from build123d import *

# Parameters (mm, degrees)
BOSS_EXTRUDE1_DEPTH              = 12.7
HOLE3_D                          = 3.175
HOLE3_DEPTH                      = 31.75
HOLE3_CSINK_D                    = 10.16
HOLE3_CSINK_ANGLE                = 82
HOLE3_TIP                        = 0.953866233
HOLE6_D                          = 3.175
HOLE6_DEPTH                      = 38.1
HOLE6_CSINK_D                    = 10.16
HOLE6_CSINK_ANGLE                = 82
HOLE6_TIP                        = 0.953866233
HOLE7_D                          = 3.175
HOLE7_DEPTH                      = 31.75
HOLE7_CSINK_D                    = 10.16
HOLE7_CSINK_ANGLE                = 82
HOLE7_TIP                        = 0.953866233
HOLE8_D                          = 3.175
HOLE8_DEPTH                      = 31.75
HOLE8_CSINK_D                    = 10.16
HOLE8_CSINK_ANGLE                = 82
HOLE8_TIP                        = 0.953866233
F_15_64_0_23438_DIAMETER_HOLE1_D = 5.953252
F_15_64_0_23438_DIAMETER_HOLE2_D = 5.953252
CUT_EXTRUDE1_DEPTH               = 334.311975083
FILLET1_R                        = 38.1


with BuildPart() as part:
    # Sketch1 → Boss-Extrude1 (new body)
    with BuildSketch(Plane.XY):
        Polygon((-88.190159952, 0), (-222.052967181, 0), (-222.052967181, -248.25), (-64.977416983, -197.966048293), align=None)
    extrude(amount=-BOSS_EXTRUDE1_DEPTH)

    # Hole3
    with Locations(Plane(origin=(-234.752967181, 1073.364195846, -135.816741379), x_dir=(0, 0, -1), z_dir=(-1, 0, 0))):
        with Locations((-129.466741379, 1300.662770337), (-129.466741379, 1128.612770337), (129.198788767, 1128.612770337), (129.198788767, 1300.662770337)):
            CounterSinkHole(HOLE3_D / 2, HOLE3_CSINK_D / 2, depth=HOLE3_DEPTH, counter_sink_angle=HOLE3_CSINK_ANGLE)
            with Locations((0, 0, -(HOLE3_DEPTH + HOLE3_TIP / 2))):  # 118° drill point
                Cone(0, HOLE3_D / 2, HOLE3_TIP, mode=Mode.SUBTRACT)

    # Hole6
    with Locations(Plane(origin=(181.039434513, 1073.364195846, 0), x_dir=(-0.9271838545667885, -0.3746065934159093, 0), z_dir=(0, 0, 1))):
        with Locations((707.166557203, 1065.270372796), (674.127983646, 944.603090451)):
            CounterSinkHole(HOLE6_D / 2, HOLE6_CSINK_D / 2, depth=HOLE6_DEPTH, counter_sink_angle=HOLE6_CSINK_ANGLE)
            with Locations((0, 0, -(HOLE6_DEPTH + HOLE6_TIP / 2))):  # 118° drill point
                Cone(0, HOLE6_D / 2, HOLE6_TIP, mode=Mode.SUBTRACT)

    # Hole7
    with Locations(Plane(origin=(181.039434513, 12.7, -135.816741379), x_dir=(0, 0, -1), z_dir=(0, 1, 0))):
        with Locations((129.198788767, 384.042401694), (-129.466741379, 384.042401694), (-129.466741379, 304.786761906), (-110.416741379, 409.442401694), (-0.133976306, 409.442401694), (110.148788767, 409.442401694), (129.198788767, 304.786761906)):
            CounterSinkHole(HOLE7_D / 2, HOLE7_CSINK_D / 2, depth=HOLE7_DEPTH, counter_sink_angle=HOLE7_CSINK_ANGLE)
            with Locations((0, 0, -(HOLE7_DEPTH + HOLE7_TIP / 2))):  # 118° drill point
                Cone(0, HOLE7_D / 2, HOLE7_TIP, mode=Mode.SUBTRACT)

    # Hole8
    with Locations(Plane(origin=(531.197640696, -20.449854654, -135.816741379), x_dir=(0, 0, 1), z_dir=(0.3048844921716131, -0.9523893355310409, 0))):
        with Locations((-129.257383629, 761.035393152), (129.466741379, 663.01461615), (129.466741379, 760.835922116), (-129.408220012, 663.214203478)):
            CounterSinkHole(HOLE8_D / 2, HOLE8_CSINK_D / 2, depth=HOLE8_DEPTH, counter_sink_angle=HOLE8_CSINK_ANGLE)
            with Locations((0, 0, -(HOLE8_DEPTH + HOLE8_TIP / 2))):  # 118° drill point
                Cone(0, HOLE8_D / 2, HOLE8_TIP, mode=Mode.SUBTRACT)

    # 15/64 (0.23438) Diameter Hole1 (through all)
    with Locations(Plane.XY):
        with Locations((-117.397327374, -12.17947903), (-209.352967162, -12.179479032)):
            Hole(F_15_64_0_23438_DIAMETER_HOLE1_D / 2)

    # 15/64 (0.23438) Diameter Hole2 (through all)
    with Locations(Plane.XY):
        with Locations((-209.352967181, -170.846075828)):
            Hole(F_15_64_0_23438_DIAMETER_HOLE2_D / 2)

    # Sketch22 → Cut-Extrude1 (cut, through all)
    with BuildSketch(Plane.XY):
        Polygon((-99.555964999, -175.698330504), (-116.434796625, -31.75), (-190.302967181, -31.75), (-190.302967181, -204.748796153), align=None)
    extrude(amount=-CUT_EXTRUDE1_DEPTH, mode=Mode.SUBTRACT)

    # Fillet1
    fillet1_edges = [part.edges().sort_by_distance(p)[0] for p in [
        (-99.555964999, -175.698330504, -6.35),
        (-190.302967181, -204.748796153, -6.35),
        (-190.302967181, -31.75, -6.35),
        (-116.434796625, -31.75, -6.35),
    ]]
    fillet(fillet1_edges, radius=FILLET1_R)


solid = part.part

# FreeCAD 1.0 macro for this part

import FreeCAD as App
import Part
import Sketcher

V = App.Vector
Q = App.Units.Quantity


def edges_at(feature, points):
    """Names of the edges that pass closest to the given points."""
    edges = feature.Shape.Edges
    near = lambda p: min(range(len(edges)), key=lambda i: edges[i].distToShape(Part.Vertex(*p))[0])
    return sorted({f"Edge{near(p) + 1}" for p in points})

doc = App.newDocument("Part")
body = doc.addObject("PartDesign::Body", "Body")

# Sketch on XY plane
sketch1 = body.newObject("Sketcher::SketchObject", "Sketch")
sketch1.AttachmentSupport = (doc.getObject("XY_Plane"), [""])
sketch1.MapMode = "FlatFace"
sketch1.addGeometry(Part.LineSegment(V(-88, 0, 0), V(-222, 0, 0)), False)
sketch1.addGeometry(Part.LineSegment(V(-222, 0, 0), V(-222, -248, 0)), False)
sketch1.addGeometry(Part.LineSegment(V(-222, -248, 0), V(-65, -198, 0)), False)
sketch1.addGeometry(Part.LineSegment(V(-65, -198, 0), V(-88, 0, 0)), False)
sketch1.addConstraint(Sketcher.Constraint("Coincident", 0, 2, 1, 1))
sketch1.addConstraint(Sketcher.Constraint("Coincident", 1, 2, 2, 1))
sketch1.addConstraint(Sketcher.Constraint("Coincident", 2, 2, 3, 1))
sketch1.addConstraint(Sketcher.Constraint("Coincident", 3, 2, 0, 1))
sketch1.addConstraint(Sketcher.Constraint("Horizontal", 0))
sketch1.addConstraint(Sketcher.Constraint("Vertical", 1))
sketch1.addConstraint(Sketcher.Constraint("PointOnObject", 0, 2, -1))
sketch1.addConstraint(Sketcher.Constraint("DistanceY", 1, 2, 1, 1, 248.25))
sketch1.addConstraint(Sketcher.Constraint("Distance", 3, 199.322321))
sketch1.addConstraint(Sketcher.Constraint("DistanceX", 0, 2, 0, 1, 133.862807))
sketch1.addConstraint(Sketcher.Constraint("DistanceY", 2, 2, -1, 1, 197.966048))
sketch1.addConstraint(Sketcher.Constraint("DistanceX", 3, 2, -1, 1, 88.19016))
pad1 = body.newObject("PartDesign::Pad", "Pad")
pad1.Profile = sketch1
pad1.Length = Q("0.5 in")
pad1.Reversed = True

# Sketch on YZ plane
sketch2 = body.newObject("Sketcher::SketchObject", "Sketch001")
sketch2.AttachmentSupport = (doc.getObject("YZ_Plane"), [""])
sketch2.MapMode = "FlatFace"
sketch2.AttachmentOffset = App.Placement(V(0, 0, -234.752967), App.Rotation())
sketch2.addGeometry(Part.Circle(V(-227.3, -6.3, 0), V(0, 0, 1), 1.6), False)
sketch2.addGeometry(Part.Circle(V(-55.2, -6.3, 0), V(0, 0, 1), 1.6), False)
sketch2.addGeometry(Part.Circle(V(-55.2, -265, 0), V(0, 0, 1), 1.6), False)
sketch2.addGeometry(Part.Circle(V(-227.3, -265, 0), V(0, 0, 1), 1.6), False)
sketch2.addConstraint(Sketcher.Constraint("Equal", 0, 1))
sketch2.addConstraint(Sketcher.Constraint("Equal", 1, 2))
sketch2.addConstraint(Sketcher.Constraint("Equal", 2, 3))
sketch2.addConstraint(Sketcher.Constraint("Horizontal", 0, 3, 1, 3))
sketch2.addConstraint(Sketcher.Constraint("Horizontal", 2, 3, 3, 3))
sketch2.addConstraint(Sketcher.Constraint("Vertical", 1, 3, 2, 3))
sketch2.addConstraint(Sketcher.Constraint("Vertical", 0, 3, 3, 3))
sketch2.addConstraint(Sketcher.Constraint("Diameter", 0, Q("0.125 in")))
sketch2.addConstraint(Sketcher.Constraint("DistanceY", 0, 3, -1, 1, Q("0.25 in")))
sketch2.addConstraint(Sketcher.Constraint("DistanceX", 0, 3, 1, 3, 172.05))
sketch2.addConstraint(Sketcher.Constraint("DistanceY", 2, 3, -1, 1, 265.01553))
sketch2.addConstraint(Sketcher.Constraint("DistanceX", 0, 3, -1, 1, 227.298574))
doc.recompute()
hole = body.newObject("PartDesign::Hole", "Hole")
hole.Profile = sketch2
hole.ThreadType = "None"
hole.Diameter = Q("0.125 in")
hole.DepthType = "Dimension"
hole.Depth = Q("1.25 in")
hole.DrillPoint = "Angled"
hole.DrillPointAngle = 118
hole.HoleCutType = "Countersink"
hole.HoleCutDiameter = Q("0.4 in")
hole.HoleCutCountersinkAngle = 82
hole.Reversed = True

# Sketch on XY plane
sketch3 = body.newObject("Sketcher::SketchObject", "Sketch002")
sketch3.AttachmentSupport = (doc.getObject("XY_Plane"), [""])
sketch3.MapMode = "FlatFace"
sketch3.addGeometry(Part.Circle(V(-75.6, -179.2, 0), V(0, 0, 1), 1.6), False)
sketch3.addGeometry(Part.Circle(V(-90.1, -55, 0), V(0, 0, 1), 1.6), False)
sketch3.addConstraint(Sketcher.Constraint("Equal", 0, 1))
sketch3.addConstraint(Sketcher.Constraint("Diameter", 0, Q("0.125 in")))
sketch3.addConstraint(Sketcher.Constraint("DistanceY", 0, 3, -1, 1, 179.24655))
sketch3.addConstraint(Sketcher.Constraint("DistanceX", 0, 3, -1, 1, 75.576675))
sketch3.addConstraint(Sketcher.Constraint("DistanceX", 1, 3, -1, 1, 90.146602))
sketch3.addConstraint(Sketcher.Constraint("DistanceY", 1, 3, -1, 1, 54.989326))
doc.recompute()
hole2 = body.newObject("PartDesign::Hole", "Hole001")
hole2.Profile = sketch3
hole2.ThreadType = "None"
hole2.Diameter = Q("0.125 in")
hole2.DepthType = "Dimension"
hole2.Depth = Q("1.5 in")
hole2.DrillPoint = "Angled"
hole2.DrillPointAngle = 118
hole2.HoleCutType = "Countersink"
hole2.HoleCutDiameter = Q("0.4 in")
hole2.HoleCutCountersinkAngle = 82

# Sketch on XZ plane
sketch4 = body.newObject("Sketcher::SketchObject", "Sketch003")
sketch4.AttachmentSupport = (doc.getObject("XZ_Plane"), [""])
sketch4.MapMode = "FlatFace"
sketch4.AttachmentOffset = App.Placement(V(0, 0, -0.5 * 25.4), App.Rotation())
sketch4.addGeometry(Part.Circle(V(-203, -265, 0), V(0, 0, 1), 1.6), False)
sketch4.addGeometry(Part.Circle(V(-203, -6.3, 0), V(0, 0, 1), 1.6), False)
sketch4.addGeometry(Part.Circle(V(-123.7, -6.3, 0), V(0, 0, 1), 1.6), False)
sketch4.addGeometry(Part.Circle(V(-228.4, -25.4, 0), V(0, 0, 1), 1.6), False)
sketch4.addGeometry(Part.Circle(V(-228.4, -135.7, 0), V(0, 0, 1), 1.6), False)
sketch4.addGeometry(Part.Circle(V(-228.4, -246, 0), V(0, 0, 1), 1.6), False)
sketch4.addGeometry(Part.Circle(V(-123.7, -265, 0), V(0, 0, 1), 1.6), False)
sketch4.addConstraint(Sketcher.Constraint("Equal", 0, 1))
sketch4.addConstraint(Sketcher.Constraint("Equal", 1, 2))
sketch4.addConstraint(Sketcher.Constraint("Equal", 2, 3))
sketch4.addConstraint(Sketcher.Constraint("Equal", 3, 4))
sketch4.addConstraint(Sketcher.Constraint("Equal", 4, 5))
sketch4.addConstraint(Sketcher.Constraint("Equal", 5, 6))
sketch4.addConstraint(Sketcher.Constraint("Horizontal", 1, 3, 2, 3))
sketch4.addConstraint(Sketcher.Constraint("Horizontal", 0, 3, 6, 3))
sketch4.addConstraint(Sketcher.Constraint("Vertical", 0, 3, 1, 3))
sketch4.addConstraint(Sketcher.Constraint("Vertical", 3, 3, 4, 3))
sketch4.addConstraint(Sketcher.Constraint("Vertical", 4, 3, 5, 3))
sketch4.addConstraint(Sketcher.Constraint("Vertical", 2, 3, 6, 3))
sketch4.addConstraint(Sketcher.Constraint("Diameter", 0, Q("0.125 in")))
sketch4.addConstraint(Sketcher.Constraint("DistanceY", 3, 3, -1, 1, Q("1 in")))
sketch4.addConstraint(Sketcher.Constraint("DistanceX", 3, 3, 1, 3, Q("1 in")))
sketch4.addConstraint(Sketcher.Constraint("DistanceY", 1, 3, -1, 1, Q("0.25 in")))
sketch4.addConstraint(Sketcher.Constraint("DistanceY", 0, 3, 5, 3, Q("0.75 in")))
sketch4.addConstraint(Sketcher.Constraint("DistanceY", 0, 3, -1, 1, 265.01553))
sketch4.addConstraint(Sketcher.Constraint("DistanceX", 1, 3, 2, 3, 79.25564))
sketch4.addConstraint(Sketcher.Constraint("DistanceX", 0, 3, -1, 1, 203.002967))
sketch4.addConstraint(Sketcher.Constraint("DistanceY", 4, 3, -1, 1, 135.682765))
doc.recompute()
hole3 = body.newObject("PartDesign::Hole", "Hole002")
hole3.Profile = sketch4
hole3.ThreadType = "None"
hole3.Diameter = Q("0.125 in")
hole3.DepthType = "Dimension"
hole3.Depth = Q("1.25 in")
hole3.DrillPoint = "Angled"
hole3.DrillPointAngle = 118
hole3.HoleCutType = "Countersink"
hole3.HoleCutDiameter = Q("0.4 in")
hole3.HoleCutCountersinkAngle = 82
hole3.Reversed = True

# Sketch on an angled plane
sketch5 = body.newObject("Sketcher::SketchObject", "Sketch004")
sketch5.Placement = App.Placement(V(55.315238, -172.792137, 0), App.Rotation(V(0, 0, 1), V(-0.952389336, -0.304884492, 0), V(0.304884492, -0.952389336, 0), "ZXY"))
sketch5.addGeometry(Part.Circle(V(-265.1, 261.4, 0), V(0, 0, 1), 1.6), False)
sketch5.addGeometry(Part.Circle(V(-6.3, 163.3, 0), V(0, 0, 1), 1.6), False)
sketch5.addGeometry(Part.Circle(V(-6.3, 261.2, 0), V(0, 0, 1), 1.6), False)
sketch5.addGeometry(Part.Circle(V(-265.2, 163.5, 0), V(0, 0, 1), 1.6), False)
sketch5.addConstraint(Sketcher.Constraint("Equal", 0, 1))
sketch5.addConstraint(Sketcher.Constraint("Equal", 1, 2))
sketch5.addConstraint(Sketcher.Constraint("Equal", 2, 3))
sketch5.addConstraint(Sketcher.Constraint("Vertical", 1, 3, 2, 3))
sketch5.addConstraint(Sketcher.Constraint("Diameter", 0, Q("0.125 in")))
sketch5.addConstraint(Sketcher.Constraint("DistanceX", 1, 3, -1, 1, Q("0.25 in")))
sketch5.addConstraint(Sketcher.Constraint("DistanceY", -1, 1, 0, 3, 261.363269))
sketch5.addConstraint(Sketcher.Constraint("DistanceY", -1, 1, 1, 3, 163.342492))
sketch5.addConstraint(Sketcher.Constraint("DistanceX", 3, 3, -1, 1, 265.224961))
sketch5.addConstraint(Sketcher.Constraint("DistanceY", -1, 1, 3, 3, 163.542079))
sketch5.addConstraint(Sketcher.Constraint("DistanceY", 2, 3, 0, 3, 0.199471))
sketch5.addConstraint(Sketcher.Constraint("DistanceX", 0, 3, -1, 1, 265.074125))
doc.recompute()
hole4 = body.newObject("PartDesign::Hole", "Hole003")
hole4.Profile = sketch5
hole4.ThreadType = "None"
hole4.Diameter = Q("0.125 in")
hole4.DepthType = "Dimension"
hole4.Depth = Q("1.25 in")
hole4.DrillPoint = "Angled"
hole4.DrillPointAngle = 118
hole4.HoleCutType = "Countersink"
hole4.HoleCutDiameter = Q("0.4 in")
hole4.HoleCutCountersinkAngle = 82

# Sketch on XY plane
sketch6 = body.newObject("Sketcher::SketchObject", "Sketch005")
sketch6.AttachmentSupport = (doc.getObject("XY_Plane"), [""])
sketch6.MapMode = "FlatFace"
sketch6.addGeometry(Part.Circle(V(-117.4, -12.2, 0), V(0, 0, 1), 3), False)
sketch6.addGeometry(Part.Circle(V(-209.4, -12.2, 0), V(0, 0, 1), 3), False)
sketch6.addConstraint(Sketcher.Constraint("Equal", 0, 1))
sketch6.addConstraint(Sketcher.Constraint("Horizontal", 0, 3, 1, 3))
sketch6.addConstraint(Sketcher.Constraint("Diameter", 0, 5.953252))
sketch6.addConstraint(Sketcher.Constraint("DistanceY", 0, 3, -1, 1, 12.179479))
sketch6.addConstraint(Sketcher.Constraint("DistanceX", 1, 3, 0, 3, 91.95564))
sketch6.addConstraint(Sketcher.Constraint("DistanceX", 0, 3, -1, 1, 117.397327))
doc.recompute()
hole5 = body.newObject("PartDesign::Hole", "Hole004")
hole5.Profile = sketch6
hole5.ThreadType = "None"
hole5.Diameter = 5.953252
hole5.DepthType = "ThroughAll"

# Sketch on XY plane
sketch7 = body.newObject("Sketcher::SketchObject", "Sketch006")
sketch7.AttachmentSupport = (doc.getObject("XY_Plane"), [""])
sketch7.MapMode = "FlatFace"
sketch7.addGeometry(Part.Circle(V(-209.4, -170.8, 0), V(0, 0, 1), 3), False)
sketch7.addConstraint(Sketcher.Constraint("Diameter", 0, 5.953252))
sketch7.addConstraint(Sketcher.Constraint("DistanceX", 0, 3, -1, 1, 209.352967))
sketch7.addConstraint(Sketcher.Constraint("DistanceY", 0, 3, -1, 1, 170.846076))
doc.recompute()
hole6 = body.newObject("PartDesign::Hole", "Hole005")
hole6.Profile = sketch7
hole6.ThreadType = "None"
hole6.Diameter = 5.953252
hole6.DepthType = "ThroughAll"

# Sketch on XY plane
sketch8 = body.newObject("Sketcher::SketchObject", "Sketch007")
sketch8.AttachmentSupport = (doc.getObject("XY_Plane"), [""])
sketch8.MapMode = "FlatFace"
sketch8.addGeometry(Part.LineSegment(V(-100, -176, 0), V(-116, -32, 0)), False)
sketch8.addGeometry(Part.LineSegment(V(-116, -32, 0), V(-190, -32, 0)), False)
sketch8.addGeometry(Part.LineSegment(V(-190, -32, 0), V(-190, -205, 0)), False)
sketch8.addGeometry(Part.LineSegment(V(-190, -205, 0), V(-100, -176, 0)), False)
sketch8.addConstraint(Sketcher.Constraint("Coincident", 0, 2, 1, 1))
sketch8.addConstraint(Sketcher.Constraint("Coincident", 1, 2, 2, 1))
sketch8.addConstraint(Sketcher.Constraint("Coincident", 2, 2, 3, 1))
sketch8.addConstraint(Sketcher.Constraint("Coincident", 3, 2, 0, 1))
sketch8.addConstraint(Sketcher.Constraint("Horizontal", 1))
sketch8.addConstraint(Sketcher.Constraint("Vertical", 2))
sketch8.addConstraint(Sketcher.Constraint("DistanceY", 0, 2, -1, 1, Q("1.25 in")))
sketch8.addConstraint(Sketcher.Constraint("DistanceX", 1, 2, 1, 1, 73.868171))
sketch8.addConstraint(Sketcher.Constraint("DistanceY", 2, 2, 2, 1, 172.998796))
sketch8.addConstraint(Sketcher.Constraint("DistanceY", 3, 2, -1, 1, 175.698331))
sketch8.addConstraint(Sketcher.Constraint("DistanceX", 0, 2, 3, 2, 16.878832))
sketch8.addConstraint(Sketcher.Constraint("DistanceX", 0, 2, -1, 1, 116.434797))
pocket1 = body.newObject("PartDesign::Pocket", "Pocket")
pocket1.Profile = sketch8
pocket1.Type = "ThroughAll"
doc.recompute()

fillet = body.newObject("PartDesign::Fillet", "Fillet")
fillet.Base = (pocket1, edges_at(pocket1, [
    (-99.556, -175.698, -6.35),
    (-190.303, -204.749, -6.35),
    (-190.303, -31.75, -6.35),
    (-116.435, -31.75, -6.35),
]))
fillet.Radius = Q("1.5 in")

doc.recompute()
